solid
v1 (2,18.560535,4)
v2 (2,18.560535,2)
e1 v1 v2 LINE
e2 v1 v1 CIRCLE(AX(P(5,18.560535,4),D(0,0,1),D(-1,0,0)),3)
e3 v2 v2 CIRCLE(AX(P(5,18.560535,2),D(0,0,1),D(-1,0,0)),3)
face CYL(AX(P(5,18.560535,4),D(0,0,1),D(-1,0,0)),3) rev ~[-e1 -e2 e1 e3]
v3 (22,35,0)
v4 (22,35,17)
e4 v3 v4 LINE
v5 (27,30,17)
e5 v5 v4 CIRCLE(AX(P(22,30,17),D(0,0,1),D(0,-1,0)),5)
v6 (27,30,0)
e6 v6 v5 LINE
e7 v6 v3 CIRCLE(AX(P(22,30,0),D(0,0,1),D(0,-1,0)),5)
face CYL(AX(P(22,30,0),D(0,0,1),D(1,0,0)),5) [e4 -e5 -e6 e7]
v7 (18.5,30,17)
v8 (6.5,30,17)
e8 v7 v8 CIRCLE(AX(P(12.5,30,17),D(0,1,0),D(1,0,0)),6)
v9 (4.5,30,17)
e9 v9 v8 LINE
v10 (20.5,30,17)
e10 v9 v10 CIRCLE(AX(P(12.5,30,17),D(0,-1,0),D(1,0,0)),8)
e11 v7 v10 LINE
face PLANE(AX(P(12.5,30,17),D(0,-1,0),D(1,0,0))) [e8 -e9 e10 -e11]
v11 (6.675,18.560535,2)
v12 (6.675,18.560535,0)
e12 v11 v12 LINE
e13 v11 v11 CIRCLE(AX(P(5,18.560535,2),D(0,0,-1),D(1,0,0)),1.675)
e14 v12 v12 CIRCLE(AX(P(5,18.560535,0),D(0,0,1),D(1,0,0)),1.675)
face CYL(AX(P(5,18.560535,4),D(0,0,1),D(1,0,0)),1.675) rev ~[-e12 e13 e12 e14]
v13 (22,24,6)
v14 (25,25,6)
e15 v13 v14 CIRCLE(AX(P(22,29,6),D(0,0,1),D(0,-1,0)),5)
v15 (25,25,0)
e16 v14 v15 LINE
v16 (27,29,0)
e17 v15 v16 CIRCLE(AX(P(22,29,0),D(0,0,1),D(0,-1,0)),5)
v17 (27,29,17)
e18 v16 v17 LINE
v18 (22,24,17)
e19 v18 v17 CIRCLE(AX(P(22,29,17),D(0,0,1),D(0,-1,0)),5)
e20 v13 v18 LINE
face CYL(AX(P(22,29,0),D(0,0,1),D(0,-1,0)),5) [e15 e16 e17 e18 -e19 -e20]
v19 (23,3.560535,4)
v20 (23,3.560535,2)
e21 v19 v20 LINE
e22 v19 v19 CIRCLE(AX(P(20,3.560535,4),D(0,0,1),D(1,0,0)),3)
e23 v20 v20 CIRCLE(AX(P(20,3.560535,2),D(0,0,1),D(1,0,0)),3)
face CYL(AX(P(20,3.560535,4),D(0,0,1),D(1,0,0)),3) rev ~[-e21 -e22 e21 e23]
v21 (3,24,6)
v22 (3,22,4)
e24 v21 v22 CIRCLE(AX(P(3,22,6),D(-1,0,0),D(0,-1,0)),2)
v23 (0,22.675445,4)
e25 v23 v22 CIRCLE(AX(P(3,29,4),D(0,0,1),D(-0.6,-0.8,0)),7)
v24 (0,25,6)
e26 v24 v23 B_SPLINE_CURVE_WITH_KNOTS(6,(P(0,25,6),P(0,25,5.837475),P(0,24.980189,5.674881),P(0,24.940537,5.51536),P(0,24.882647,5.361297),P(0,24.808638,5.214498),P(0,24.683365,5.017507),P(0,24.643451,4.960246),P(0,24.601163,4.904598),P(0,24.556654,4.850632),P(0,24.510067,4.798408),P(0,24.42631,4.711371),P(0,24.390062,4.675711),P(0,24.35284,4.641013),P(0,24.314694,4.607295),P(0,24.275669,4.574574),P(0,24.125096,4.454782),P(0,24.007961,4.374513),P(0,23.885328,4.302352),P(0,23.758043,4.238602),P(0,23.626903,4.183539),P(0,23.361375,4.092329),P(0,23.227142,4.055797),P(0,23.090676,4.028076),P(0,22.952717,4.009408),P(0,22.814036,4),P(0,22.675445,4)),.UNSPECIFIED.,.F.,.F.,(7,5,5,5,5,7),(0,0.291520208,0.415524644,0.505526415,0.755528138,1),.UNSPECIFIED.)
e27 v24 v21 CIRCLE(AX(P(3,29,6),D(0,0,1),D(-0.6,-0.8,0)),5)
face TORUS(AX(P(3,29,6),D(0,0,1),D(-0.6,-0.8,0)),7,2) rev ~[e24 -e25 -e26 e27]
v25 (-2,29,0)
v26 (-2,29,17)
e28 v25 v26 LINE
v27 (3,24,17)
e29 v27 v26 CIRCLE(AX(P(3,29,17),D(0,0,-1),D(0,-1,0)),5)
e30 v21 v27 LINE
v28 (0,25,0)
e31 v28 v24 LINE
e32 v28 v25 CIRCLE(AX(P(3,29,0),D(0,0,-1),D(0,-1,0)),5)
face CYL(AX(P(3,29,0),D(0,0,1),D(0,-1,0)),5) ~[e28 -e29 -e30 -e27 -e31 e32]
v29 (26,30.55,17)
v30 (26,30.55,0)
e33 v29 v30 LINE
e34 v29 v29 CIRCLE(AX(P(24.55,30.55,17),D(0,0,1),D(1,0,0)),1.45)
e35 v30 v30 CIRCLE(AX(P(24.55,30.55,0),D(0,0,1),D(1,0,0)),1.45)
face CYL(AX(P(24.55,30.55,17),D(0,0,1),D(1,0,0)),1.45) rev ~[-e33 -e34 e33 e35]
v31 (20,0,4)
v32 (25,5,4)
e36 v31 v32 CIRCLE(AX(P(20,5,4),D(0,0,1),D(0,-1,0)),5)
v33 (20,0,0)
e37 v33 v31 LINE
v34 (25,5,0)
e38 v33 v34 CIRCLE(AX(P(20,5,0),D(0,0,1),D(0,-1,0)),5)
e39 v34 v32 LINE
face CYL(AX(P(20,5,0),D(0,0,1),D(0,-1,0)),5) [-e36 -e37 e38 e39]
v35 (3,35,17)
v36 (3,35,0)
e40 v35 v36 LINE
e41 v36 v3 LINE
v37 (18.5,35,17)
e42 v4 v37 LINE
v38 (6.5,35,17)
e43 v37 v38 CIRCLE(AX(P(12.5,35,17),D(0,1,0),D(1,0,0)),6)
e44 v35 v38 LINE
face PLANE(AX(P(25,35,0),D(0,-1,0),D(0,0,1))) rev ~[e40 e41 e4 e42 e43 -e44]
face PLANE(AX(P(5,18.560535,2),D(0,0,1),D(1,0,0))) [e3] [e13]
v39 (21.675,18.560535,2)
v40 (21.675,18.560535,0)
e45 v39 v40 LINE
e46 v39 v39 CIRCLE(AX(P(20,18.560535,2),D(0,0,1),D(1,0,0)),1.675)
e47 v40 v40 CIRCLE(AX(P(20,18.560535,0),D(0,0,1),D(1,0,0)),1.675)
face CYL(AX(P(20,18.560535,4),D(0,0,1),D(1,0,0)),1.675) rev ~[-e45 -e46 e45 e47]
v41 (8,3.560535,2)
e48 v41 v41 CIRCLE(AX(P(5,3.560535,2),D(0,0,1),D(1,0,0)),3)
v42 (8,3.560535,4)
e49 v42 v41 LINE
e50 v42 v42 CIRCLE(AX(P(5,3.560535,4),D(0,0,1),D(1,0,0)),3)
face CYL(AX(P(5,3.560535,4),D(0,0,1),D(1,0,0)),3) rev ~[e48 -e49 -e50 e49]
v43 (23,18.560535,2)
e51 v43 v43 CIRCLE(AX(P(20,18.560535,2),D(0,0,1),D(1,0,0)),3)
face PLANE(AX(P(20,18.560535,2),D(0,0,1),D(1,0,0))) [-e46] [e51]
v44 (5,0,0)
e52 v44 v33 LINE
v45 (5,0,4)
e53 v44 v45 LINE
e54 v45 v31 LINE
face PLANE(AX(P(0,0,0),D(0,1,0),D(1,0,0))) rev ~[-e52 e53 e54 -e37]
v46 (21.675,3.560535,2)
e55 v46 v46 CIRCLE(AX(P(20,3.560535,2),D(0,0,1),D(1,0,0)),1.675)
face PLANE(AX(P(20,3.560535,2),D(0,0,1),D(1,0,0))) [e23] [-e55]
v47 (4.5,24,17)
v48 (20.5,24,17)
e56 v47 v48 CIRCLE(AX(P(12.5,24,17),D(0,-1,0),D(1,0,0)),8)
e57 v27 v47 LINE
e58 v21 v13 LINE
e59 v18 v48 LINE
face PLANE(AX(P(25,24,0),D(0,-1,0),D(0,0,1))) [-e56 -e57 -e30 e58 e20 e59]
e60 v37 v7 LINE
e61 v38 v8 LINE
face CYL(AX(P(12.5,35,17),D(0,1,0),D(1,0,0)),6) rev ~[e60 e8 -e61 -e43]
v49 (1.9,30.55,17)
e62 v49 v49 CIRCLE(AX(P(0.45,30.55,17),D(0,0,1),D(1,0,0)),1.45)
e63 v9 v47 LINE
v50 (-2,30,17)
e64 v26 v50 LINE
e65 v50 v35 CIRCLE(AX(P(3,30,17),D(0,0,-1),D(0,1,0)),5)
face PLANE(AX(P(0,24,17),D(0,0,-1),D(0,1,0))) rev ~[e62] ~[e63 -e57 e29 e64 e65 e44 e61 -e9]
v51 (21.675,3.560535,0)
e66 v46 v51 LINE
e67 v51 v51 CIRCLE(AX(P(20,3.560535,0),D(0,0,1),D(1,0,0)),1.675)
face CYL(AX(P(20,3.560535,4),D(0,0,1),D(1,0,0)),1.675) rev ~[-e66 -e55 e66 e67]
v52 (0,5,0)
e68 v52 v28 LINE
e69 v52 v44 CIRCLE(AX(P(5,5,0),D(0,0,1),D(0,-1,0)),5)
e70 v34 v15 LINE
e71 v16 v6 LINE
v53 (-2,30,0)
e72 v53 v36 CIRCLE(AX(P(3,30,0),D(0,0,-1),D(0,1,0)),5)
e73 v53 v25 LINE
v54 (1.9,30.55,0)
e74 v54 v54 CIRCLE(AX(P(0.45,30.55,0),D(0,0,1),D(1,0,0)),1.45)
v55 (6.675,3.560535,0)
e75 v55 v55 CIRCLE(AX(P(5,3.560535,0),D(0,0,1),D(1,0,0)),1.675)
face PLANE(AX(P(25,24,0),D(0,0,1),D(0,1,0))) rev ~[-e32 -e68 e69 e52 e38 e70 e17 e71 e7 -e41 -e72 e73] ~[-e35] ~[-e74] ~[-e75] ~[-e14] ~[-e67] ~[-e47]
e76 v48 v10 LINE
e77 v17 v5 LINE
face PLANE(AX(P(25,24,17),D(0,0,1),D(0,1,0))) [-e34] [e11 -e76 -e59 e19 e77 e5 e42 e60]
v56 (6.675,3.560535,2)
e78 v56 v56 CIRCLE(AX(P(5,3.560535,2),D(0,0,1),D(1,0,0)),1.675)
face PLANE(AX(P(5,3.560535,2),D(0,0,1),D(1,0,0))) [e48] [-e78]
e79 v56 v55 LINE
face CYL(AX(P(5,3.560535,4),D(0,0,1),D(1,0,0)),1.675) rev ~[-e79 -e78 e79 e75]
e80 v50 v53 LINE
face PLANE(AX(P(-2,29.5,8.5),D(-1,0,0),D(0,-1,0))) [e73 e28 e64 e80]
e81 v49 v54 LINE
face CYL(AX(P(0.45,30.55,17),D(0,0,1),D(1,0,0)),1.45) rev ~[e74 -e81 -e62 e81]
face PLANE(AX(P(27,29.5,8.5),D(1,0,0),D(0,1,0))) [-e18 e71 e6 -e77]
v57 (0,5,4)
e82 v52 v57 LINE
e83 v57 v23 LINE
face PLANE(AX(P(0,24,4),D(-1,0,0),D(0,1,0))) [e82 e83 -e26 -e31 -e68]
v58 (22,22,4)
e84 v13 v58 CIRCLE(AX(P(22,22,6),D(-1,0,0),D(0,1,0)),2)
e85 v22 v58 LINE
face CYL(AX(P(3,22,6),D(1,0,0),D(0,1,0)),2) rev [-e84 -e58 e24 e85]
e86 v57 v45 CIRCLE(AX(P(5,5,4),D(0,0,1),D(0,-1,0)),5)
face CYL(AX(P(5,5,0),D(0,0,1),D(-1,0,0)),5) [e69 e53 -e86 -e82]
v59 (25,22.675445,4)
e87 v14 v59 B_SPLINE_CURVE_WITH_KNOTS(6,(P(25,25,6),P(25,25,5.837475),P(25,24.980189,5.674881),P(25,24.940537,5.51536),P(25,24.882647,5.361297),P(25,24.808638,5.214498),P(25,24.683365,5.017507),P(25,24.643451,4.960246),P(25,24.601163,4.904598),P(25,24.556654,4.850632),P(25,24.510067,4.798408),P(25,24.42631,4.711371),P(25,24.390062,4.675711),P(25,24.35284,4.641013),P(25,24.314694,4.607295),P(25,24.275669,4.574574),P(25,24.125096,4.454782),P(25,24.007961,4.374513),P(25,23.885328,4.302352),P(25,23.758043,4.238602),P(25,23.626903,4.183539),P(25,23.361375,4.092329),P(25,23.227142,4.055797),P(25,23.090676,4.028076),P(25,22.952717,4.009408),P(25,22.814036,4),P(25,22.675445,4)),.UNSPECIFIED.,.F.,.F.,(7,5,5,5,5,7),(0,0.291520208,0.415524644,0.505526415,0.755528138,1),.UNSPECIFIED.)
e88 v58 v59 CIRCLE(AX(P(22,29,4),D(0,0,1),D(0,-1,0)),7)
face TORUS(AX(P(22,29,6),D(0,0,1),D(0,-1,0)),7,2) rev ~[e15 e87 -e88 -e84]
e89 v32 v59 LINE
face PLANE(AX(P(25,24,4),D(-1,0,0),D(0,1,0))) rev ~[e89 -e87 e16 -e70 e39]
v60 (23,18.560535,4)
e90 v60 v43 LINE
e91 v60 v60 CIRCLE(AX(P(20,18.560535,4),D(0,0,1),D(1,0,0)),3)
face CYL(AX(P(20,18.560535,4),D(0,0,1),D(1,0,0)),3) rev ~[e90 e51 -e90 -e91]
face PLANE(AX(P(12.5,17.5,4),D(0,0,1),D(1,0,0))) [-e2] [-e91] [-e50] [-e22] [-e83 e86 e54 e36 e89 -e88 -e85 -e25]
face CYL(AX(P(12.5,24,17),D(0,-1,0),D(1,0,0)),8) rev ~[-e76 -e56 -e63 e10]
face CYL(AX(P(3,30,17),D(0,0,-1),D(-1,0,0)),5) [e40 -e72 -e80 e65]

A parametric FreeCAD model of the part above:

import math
import FreeCAD as App
import Part
import Sketcher


def edges_at(feature, points):
    """Names of the edges that pass closest to the given points."""
    edges = feature.Shape.Edges
    near = lambda p: min(range(len(edges)), key=lambda i: edges[i].distToShape(Part.Vertex(*p))[0])
    return sorted({f"Edge{near(p) + 1}" for p in points})


def add_polygon(sketch, points):
    """Adds a closed chain of lines whose ends are joined by coincident constraints."""
    first, n = sketch.GeometryCount, len(points)
    for a, b in zip(points, points[1:] + points[:1]):
        sketch.addGeometry(Part.LineSegment(App.Vector(*a, 0), App.Vector(*b, 0)), False)
    for i in range(n):
        sketch.addConstraint(Sketcher.Constraint("Coincident", first + i, 2, first + (i + 1) % n, 1))

doc = App.newDocument("Part")
params = doc.addObject("Spreadsheet::Sheet", "Params")
for row, (alias, value) in enumerate([
    ("sketch1_width", "25 mm"),
    ("sketch1_height", "35 mm"),
    ("pad1_length", "4 mm"),
    ("sketch2_diameter", "3.35 mm"),
    ("pocket1_length", "25 mm"),
    ("sketch3_width", "25 mm"),
    ("sketch3_height", "11 mm"),
    ("pad2_length", "13 mm"),
    ("sketch4_radius", "6 mm"),
    ("pocket2_length", "6 mm"),
    ("sketch5_diameter", "16 mm"),
    ("pocket3_length", "6 mm"),
    ("sketch6_diameter", "6 mm"),
    ("sketch6_diameter2", "3.35 mm"),
    ("pocket4_length", "2 mm"),
    ("fillet_radius", "5 mm"),
    ("sketch7_width", "11 mm"),
    ("sketch7_height", "17 mm"),
    ("pad3_length", "2 mm"),
    ("sketch8_width", "11 mm"),
    ("sketch8_height", "17 mm"),
    ("pad4_length", "2 mm"),
    ("sketch9_diameter", "2.9 mm"),
    ("pocket5_length", "25 mm"),
    ("fillet2_radius", "5 mm"),
    ("fillet3_radius", "2 mm"),
], start=1):
    params.set(f"A{row}", alias)
    params.set(f"B{row}", "=" + value)
    params.setAlias(f"B{row}", alias)

body = doc.addObject("PartDesign::Body", "Body")

# Sketch on XY plane
sketch1 = body.newObject("Sketcher::SketchObject", "Sketch")
sketch1.AttachmentSupport = (doc.getObject("XY_Plane"), [""])
sketch1.MapMode = "FlatFace"
add_polygon(sketch1, [(0, 35), (0, 0), (25, 0), (25, 35)])  # lines 0-3
sketch1.addConstraint(Sketcher.Constraint("Vertical", 0))
sketch1.addConstraint(Sketcher.Constraint("Horizontal", 1))
sketch1.addConstraint(Sketcher.Constraint("Vertical", 2))
sketch1.addConstraint(Sketcher.Constraint("Horizontal", 3))
sketch1.addConstraint(Sketcher.Constraint("Coincident", 0, 2, -1, 1))
sketch1.addConstraint(Sketcher.Constraint("DistanceX", 1, 1, 1, 2, 25.0))
sketch1.addConstraint(Sketcher.Constraint("DistanceY", 0, 2, 0, 1, 35.0))
sketch1.setExpression("Constraints[9]", "Params.sketch1_width")
sketch1.setExpression("Constraints[10]", "Params.sketch1_height")
pad1 = body.newObject("PartDesign::Pad", "Pad")
pad1.Profile = sketch1
pad1.setExpression("Length", "Params.pad1_length")

# Sketch on XY plane
sketch2 = body.newObject("Sketcher::SketchObject", "Sketch001")
sketch2.AttachmentSupport = (doc.getObject("XY_Plane"), [""])
sketch2.MapMode = "FlatFace"
sketch2.AttachmentOffset = App.Placement(App.Vector(0, 0, 4), App.Rotation())
sketch2.addGeometry(Part.Circle(App.Vector(5, 18.6, 0), App.Vector(0, 0, 1), 1.7), False)
sketch2.addGeometry(Part.Circle(App.Vector(20, 18.6, 0), App.Vector(0, 0, 1), 1.7), False)
sketch2.addGeometry(Part.Circle(App.Vector(20, 3.6, 0), App.Vector(0, 0, 1), 1.7), False)
sketch2.addGeometry(Part.Circle(App.Vector(5, 3.6, 0), App.Vector(0, 0, 1), 1.7), False)
sketch2.addConstraint(Sketcher.Constraint("Equal", 0, 1))
sketch2.addConstraint(Sketcher.Constraint("Equal", 1, 2))
sketch2.addConstraint(Sketcher.Constraint("Equal", 2, 3))
sketch2.addConstraint(Sketcher.Constraint("Horizontal", 0, 3, 1, 3))
sketch2.addConstraint(Sketcher.Constraint("Horizontal", 2, 3, 3, 3))
sketch2.addConstraint(Sketcher.Constraint("Vertical", 1, 3, 2, 3))
sketch2.addConstraint(Sketcher.Constraint("Vertical", 0, 3, 3, 3))
sketch2.addConstraint(Sketcher.Constraint("Diameter", 0, 3.35))
sketch2.addConstraint(Sketcher.Constraint("DistanceX", -1, 1, 0, 3, 5.0))
sketch2.addConstraint(Sketcher.Constraint("DistanceX", -1, 1, 1, 3, 20.0))
sketch2.addConstraint(Sketcher.Constraint("DistanceY", 2, 3, 1, 3, 15.0))
sketch2.addConstraint(Sketcher.Constraint("DistanceY", -1, 1, 0, 3, 18.560535))
sketch2.setExpression("Constraints[7]", "Params.sketch2_diameter")
pocket1 = body.newObject("PartDesign::Pocket", "Pocket")
pocket1.Profile = sketch2
pocket1.setExpression("Length", "Params.pocket1_length")

# Sketch on XY plane
sketch3 = body.newObject("Sketcher::SketchObject", "Sketch002")
sketch3.AttachmentSupport = (doc.getObject("XY_Plane"), [""])
sketch3.MapMode = "FlatFace"
sketch3.AttachmentOffset = App.Placement(App.Vector(0, 0, 4), App.Rotation())
add_polygon(sketch3, [(0, 35), (0, 24), (25, 24), (25, 35)])  # lines 0-3
sketch3.addConstraint(Sketcher.Constraint("Vertical", 0))
sketch3.addConstraint(Sketcher.Constraint("Horizontal", 1))
sketch3.addConstraint(Sketcher.Constraint("Vertical", 2))
sketch3.addConstraint(Sketcher.Constraint("Horizontal", 3))
sketch3.addConstraint(Sketcher.Constraint("PointOnObject", 0, 2, -2))
sketch3.addConstraint(Sketcher.Constraint("DistanceX", 1, 1, 1, 2, 25.0))
sketch3.addConstraint(Sketcher.Constraint("DistanceY", 0, 2, 0, 1, 11.0))
sketch3.addConstraint(Sketcher.Constraint("DistanceY", -1, 1, 0, 2, 24.0))
sketch3.setExpression("Constraints[9]", "Params.sketch3_width")
sketch3.setExpression("Constraints[10]", "Params.sketch3_height")
pad2 = body.newObject("PartDesign::Pad", "Pad001")
pad2.Profile = sketch3
pad2.setExpression("Length", "Params.pad2_length")

# Sketch on XZ plane
sketch4 = body.newObject("Sketcher::SketchObject", "Sketch003")
sketch4.AttachmentSupport = (doc.getObject("XZ_Plane"), [""])
sketch4.MapMode = "FlatFace"
sketch4.AttachmentOffset = App.Placement(App.Vector(0, 0, -35), App.Rotation())
sketch4.addGeometry(Part.ArcOfCircle(Part.Circle(App.Vector(12, 17, 0), App.Vector(0, 0, 1), 6), math.radians(180), math.radians(360)), False)
sketch4.addGeometry(Part.LineSegment(App.Vector(6, 17, 0), App.Vector(18, 17, 0)), False)
sketch4.addConstraint(Sketcher.Constraint("Coincident", 0, 1, 1, 1))
sketch4.addConstraint(Sketcher.Constraint("Coincident", 1, 2, 0, 2))
sketch4.addConstraint(Sketcher.Constraint("Horizontal", 1))
sketch4.addConstraint(Sketcher.Constraint("Radius", 0, 6.0))
sketch4.addConstraint(Sketcher.Constraint("DistanceY", -1, 1, 0, 3, 17.0))
sketch4.addConstraint(Sketcher.Constraint("DistanceY", -1, 1, 0, 1, 17.0))
sketch4.addConstraint(Sketcher.Constraint("DistanceX", -1, 1, 0, 3, 12.5))
sketch4.setExpression("Constraints[3]", "Params.sketch4_radius")
pocket2 = body.newObject("PartDesign::Pocket", "Pocket001")
pocket2.Profile = sketch4
pocket2.setExpression("Length", "Params.pocket2_length")
pocket2.Reversed = True

# Sketch on XZ plane
sketch5 = body.newObject("Sketcher::SketchObject", "Sketch004")
sketch5.AttachmentSupport = (doc.getObject("XZ_Plane"), [""])
sketch5.MapMode = "FlatFace"
sketch5.AttachmentOffset = App.Placement(App.Vector(0, 0, -24), App.Rotation())
sketch5.addGeometry(Part.Circle(App.Vector(12, 17, 0), App.Vector(0, 0, 1), 8), False)
sketch5.addConstraint(Sketcher.Constraint("Diameter", 0, 16.0))
sketch5.addConstraint(Sketcher.Constraint("DistanceY", -1, 1, 0, 3, 17.0))
sketch5.addConstraint(Sketcher.Constraint("DistanceX", -1, 1, 0, 3, 12.5))
sketch5.setExpression("Constraints[0]", "Params.sketch5_diameter")
pocket3 = body.newObject("PartDesign::Pocket", "Pocket002")
pocket3.Profile = sketch5
pocket3.setExpression("Length", "Params.pocket3_length")

# Sketch on XY plane
sketch6 = body.newObject("Sketcher::SketchObject", "Sketch005")
sketch6.AttachmentSupport = (doc.getObject("XY_Plane"), [""])
sketch6.MapMode = "FlatFace"
sketch6.AttachmentOffset = App.Placement(App.Vector(0, 0, 4), App.Rotation())
sketch6.addGeometry(Part.Circle(App.Vector(5, 18.6, 0), App.Vector(0, 0, 1), 3), False)
sketch6.addGeometry(Part.Circle(App.Vector(5, 18.6, 0), App.Vector(0, 0, 1), 1.7), False)
sketch6.addGeometry(Part.Circle(App.Vector(20, 18.6, 0), App.Vector(0, 0, 1), 3), False)
sketch6.addGeometry(Part.Circle(App.Vector(20, 18.6, 0), App.Vector(0, 0, 1), 1.7), False)
sketch6.addGeometry(Part.Circle(App.Vector(20, 3.6, 0), App.Vector(0, 0, 1), 3), False)
sketch6.addGeometry(Part.Circle(App.Vector(20, 3.6, 0), App.Vector(0, 0, 1), 1.7), False)
sketch6.addGeometry(Part.Circle(App.Vector(5, 3.6, 0), App.Vector(0, 0, 1), 3), False)
sketch6.addGeometry(Part.Circle(App.Vector(5, 3.6, 0), App.Vector(0, 0, 1), 1.7), False)
sketch6.addConstraint(Sketcher.Constraint("Coincident", 1, 3, 0, 3))
sketch6.addConstraint(Sketcher.Constraint("Coincident", 3, 3, 2, 3))
sketch6.addConstraint(Sketcher.Constraint("Coincident", 5, 3, 4, 3))
sketch6.addConstraint(Sketcher.Constraint("Coincident", 7, 3, 6, 3))
sketch6.addConstraint(Sketcher.Constraint("Equal", 0, 2))
sketch6.addConstraint(Sketcher.Constraint("Equal", 1, 3))
sketch6.addConstraint(Sketcher.Constraint("Equal", 2, 4))
sketch6.addConstraint(Sketcher.Constraint("Equal", 3, 5))
sketch6.addConstraint(Sketcher.Constraint("Equal", 4, 6))
sketch6.addConstraint(Sketcher.Constraint("Equal", 5, 7))
sketch6.addConstraint(Sketcher.Constraint("Horizontal", 1, 3, 2, 3))
sketch6.addConstraint(Sketcher.Constraint("Horizontal", 5, 3, 6, 3))
sketch6.addConstraint(Sketcher.Constraint("Vertical", 3, 3, 4, 3))
sketch6.addConstraint(Sketcher.Constraint("Vertical", 1, 3, 6, 3))
sketch6.addConstraint(Sketcher.Constraint("Diameter", 0, 6.0))
sketch6.addConstraint(Sketcher.Constraint("Diameter", 1, 3.35))
sketch6.addConstraint(Sketcher.Constraint("DistanceX", -1, 1, 0, 3, 5.0))
sketch6.addConstraint(Sketcher.Constraint("DistanceX", -1, 1, 2, 3, 20.0))
sketch6.addConstraint(Sketcher.Constraint("DistanceY", 4, 3, 2, 3, 15.0))
sketch6.addConstraint(Sketcher.Constraint("DistanceY", -1, 1, 0, 3, 18.560535))
sketch6.setExpression("Constraints[14]", "Params.sketch6_diameter")
sketch6.setExpression("Constraints[15]", "Params.sketch6_diameter2")
pocket4 = body.newObject("PartDesign::Pocket", "Pocket003")
pocket4.Profile = sketch6
pocket4.setExpression("Length", "Params.pocket4_length")
doc.recompute()

fillet = body.newObject("PartDesign::Fillet", "Fillet")
fillet.Base = (pocket4, edges_at(pocket4, [(0, 0, 2), (25, 0, 2)]))
fillet.setExpression("Radius", "Params.fillet_radius")

# Sketch on YZ plane
sketch7 = body.newObject("Sketcher::SketchObject", "Sketch006")
sketch7.AttachmentSupport = (doc.getObject("YZ_Plane"), [""])
sketch7.MapMode = "FlatFace"
add_polygon(sketch7, [(35, 17), (35, 0), (24, 0), (24, 17)])  # lines 0-3
sketch7.addConstraint(Sketcher.Constraint("Vertical", 0))
sketch7.addConstraint(Sketcher.Constraint("Horizontal", 1))
sketch7.addConstraint(Sketcher.Constraint("Vertical", 2))
sketch7.addConstraint(Sketcher.Constraint("Horizontal", 3))
sketch7.addConstraint(Sketcher.Constraint("PointOnObject", 0, 2, -1))
sketch7.addConstraint(Sketcher.Constraint("DistanceX", 1, 2, 1, 1, 11.0))
sketch7.addConstraint(Sketcher.Constraint("DistanceY", 0, 2, 0, 1, 17.0))
sketch7.addConstraint(Sketcher.Constraint("DistanceX", -1, 1, 0, 2, 35.0))
sketch7.setExpression("Constraints[9]", "Params.sketch7_width")
sketch7.setExpression("Constraints[10]", "Params.sketch7_height")
pad3 = body.newObject("PartDesign::Pad", "Pad002")
pad3.Profile = sketch7
pad3.setExpression("Length", "Params.pad3_length")
pad3.Reversed = True

# Sketch on YZ plane
sketch8 = body.newObject("Sketcher::SketchObject", "Sketch007")
sketch8.AttachmentSupport = (doc.getObject("YZ_Plane"), [""])
sketch8.MapMode = "FlatFace"
sketch8.AttachmentOffset = App.Placement(App.Vector(0, 0, 25), App.Rotation())
add_polygon(sketch8, [(24, 17), (24, 0), (35, 0), (35, 17)])  # lines 0-3
sketch8.addConstraint(Sketcher.Constraint("Vertical", 0))
sketch8.addConstraint(Sketcher.Constraint("Horizontal", 1))
sketch8.addConstraint(Sketcher.Constraint("Vertical", 2))
sketch8.addConstraint(Sketcher.Constraint("Horizontal", 3))
sketch8.addConstraint(Sketcher.Constraint("PointOnObject", 0, 2, -1))
sketch8.addConstraint(Sketcher.Constraint("DistanceX", 1, 1, 1, 2, 11.0))
sketch8.addConstraint(Sketcher.Constraint("DistanceY", 0, 2, 0, 1, 17.0))
sketch8.addConstraint(Sketcher.Constraint("DistanceX", -1, 1, 0, 2, 24.0))
sketch8.setExpression("Constraints[9]", "Params.sketch8_width")
sketch8.setExpression("Constraints[10]", "Params.sketch8_height")
pad4 = body.newObject("PartDesign::Pad", "Pad003")
pad4.Profile = sketch8
pad4.setExpression("Length", "Params.pad4_length")

# Sketch on XY plane
sketch9 = body.newObject("Sketcher::SketchObject", "Sketch008")
sketch9.AttachmentSupport = (doc.getObject("XY_Plane"), [""])
sketch9.MapMode = "FlatFace"
sketch9.AttachmentOffset = App.Placement(App.Vector(0, 0, 17), App.Rotation())
sketch9.addGeometry(Part.Circle(App.Vector(0.5, 30.6, 0), App.Vector(0, 0, 1), 1.4), False)
sketch9.addGeometry(Part.Circle(App.Vector(24.6, 30.6, 0), App.Vector(0, 0, 1), 1.4), False)
sketch9.addConstraint(Sketcher.Constraint("Equal", 0, 1))
sketch9.addConstraint(Sketcher.Constraint("Horizontal", 0, 3, 1, 3))
sketch9.addConstraint(Sketcher.Constraint("Diameter", 0, 2.9))
sketch9.addConstraint(Sketcher.Constraint("DistanceX", 0, 3, 1, 3, 24.1))
sketch9.addConstraint(Sketcher.Constraint("DistanceX", -1, 1, 0, 3, 0.45))
sketch9.addConstraint(Sketcher.Constraint("DistanceY", -1, 1, 0, 3, 30.55))
sketch9.setExpression("Constraints[2]", "Params.sketch9_diameter")
pocket5 = body.newObject("PartDesign::Pocket", "Pocket004")
pocket5.Profile = sketch9
pocket5.setExpression("Length", "Params.pocket5_length")
doc.recompute()

fillet2 = body.newObject("PartDesign::Fillet", "Fillet001")
fillet2.Base = (pocket5, edges_at(pocket5, [
    (-2, 24, 8.5),
    (-2, 35, 8.5),
    (27, 35, 8.5),
    (27, 24, 8.5),
]))
fillet2.setExpression("Radius", "Params.fillet2_radius")
doc.recompute()

fillet3 = body.newObject("PartDesign::Fillet", "Fillet002")
fillet3.Base = (fillet2, edges_at(fillet2, [(12.5, 24, 4), (23.581, 24.257, 4), (1.419, 24.257, 4)]))
fillet3.setExpression("Radius", "Params.fillet3_radius")

doc.recompute()
